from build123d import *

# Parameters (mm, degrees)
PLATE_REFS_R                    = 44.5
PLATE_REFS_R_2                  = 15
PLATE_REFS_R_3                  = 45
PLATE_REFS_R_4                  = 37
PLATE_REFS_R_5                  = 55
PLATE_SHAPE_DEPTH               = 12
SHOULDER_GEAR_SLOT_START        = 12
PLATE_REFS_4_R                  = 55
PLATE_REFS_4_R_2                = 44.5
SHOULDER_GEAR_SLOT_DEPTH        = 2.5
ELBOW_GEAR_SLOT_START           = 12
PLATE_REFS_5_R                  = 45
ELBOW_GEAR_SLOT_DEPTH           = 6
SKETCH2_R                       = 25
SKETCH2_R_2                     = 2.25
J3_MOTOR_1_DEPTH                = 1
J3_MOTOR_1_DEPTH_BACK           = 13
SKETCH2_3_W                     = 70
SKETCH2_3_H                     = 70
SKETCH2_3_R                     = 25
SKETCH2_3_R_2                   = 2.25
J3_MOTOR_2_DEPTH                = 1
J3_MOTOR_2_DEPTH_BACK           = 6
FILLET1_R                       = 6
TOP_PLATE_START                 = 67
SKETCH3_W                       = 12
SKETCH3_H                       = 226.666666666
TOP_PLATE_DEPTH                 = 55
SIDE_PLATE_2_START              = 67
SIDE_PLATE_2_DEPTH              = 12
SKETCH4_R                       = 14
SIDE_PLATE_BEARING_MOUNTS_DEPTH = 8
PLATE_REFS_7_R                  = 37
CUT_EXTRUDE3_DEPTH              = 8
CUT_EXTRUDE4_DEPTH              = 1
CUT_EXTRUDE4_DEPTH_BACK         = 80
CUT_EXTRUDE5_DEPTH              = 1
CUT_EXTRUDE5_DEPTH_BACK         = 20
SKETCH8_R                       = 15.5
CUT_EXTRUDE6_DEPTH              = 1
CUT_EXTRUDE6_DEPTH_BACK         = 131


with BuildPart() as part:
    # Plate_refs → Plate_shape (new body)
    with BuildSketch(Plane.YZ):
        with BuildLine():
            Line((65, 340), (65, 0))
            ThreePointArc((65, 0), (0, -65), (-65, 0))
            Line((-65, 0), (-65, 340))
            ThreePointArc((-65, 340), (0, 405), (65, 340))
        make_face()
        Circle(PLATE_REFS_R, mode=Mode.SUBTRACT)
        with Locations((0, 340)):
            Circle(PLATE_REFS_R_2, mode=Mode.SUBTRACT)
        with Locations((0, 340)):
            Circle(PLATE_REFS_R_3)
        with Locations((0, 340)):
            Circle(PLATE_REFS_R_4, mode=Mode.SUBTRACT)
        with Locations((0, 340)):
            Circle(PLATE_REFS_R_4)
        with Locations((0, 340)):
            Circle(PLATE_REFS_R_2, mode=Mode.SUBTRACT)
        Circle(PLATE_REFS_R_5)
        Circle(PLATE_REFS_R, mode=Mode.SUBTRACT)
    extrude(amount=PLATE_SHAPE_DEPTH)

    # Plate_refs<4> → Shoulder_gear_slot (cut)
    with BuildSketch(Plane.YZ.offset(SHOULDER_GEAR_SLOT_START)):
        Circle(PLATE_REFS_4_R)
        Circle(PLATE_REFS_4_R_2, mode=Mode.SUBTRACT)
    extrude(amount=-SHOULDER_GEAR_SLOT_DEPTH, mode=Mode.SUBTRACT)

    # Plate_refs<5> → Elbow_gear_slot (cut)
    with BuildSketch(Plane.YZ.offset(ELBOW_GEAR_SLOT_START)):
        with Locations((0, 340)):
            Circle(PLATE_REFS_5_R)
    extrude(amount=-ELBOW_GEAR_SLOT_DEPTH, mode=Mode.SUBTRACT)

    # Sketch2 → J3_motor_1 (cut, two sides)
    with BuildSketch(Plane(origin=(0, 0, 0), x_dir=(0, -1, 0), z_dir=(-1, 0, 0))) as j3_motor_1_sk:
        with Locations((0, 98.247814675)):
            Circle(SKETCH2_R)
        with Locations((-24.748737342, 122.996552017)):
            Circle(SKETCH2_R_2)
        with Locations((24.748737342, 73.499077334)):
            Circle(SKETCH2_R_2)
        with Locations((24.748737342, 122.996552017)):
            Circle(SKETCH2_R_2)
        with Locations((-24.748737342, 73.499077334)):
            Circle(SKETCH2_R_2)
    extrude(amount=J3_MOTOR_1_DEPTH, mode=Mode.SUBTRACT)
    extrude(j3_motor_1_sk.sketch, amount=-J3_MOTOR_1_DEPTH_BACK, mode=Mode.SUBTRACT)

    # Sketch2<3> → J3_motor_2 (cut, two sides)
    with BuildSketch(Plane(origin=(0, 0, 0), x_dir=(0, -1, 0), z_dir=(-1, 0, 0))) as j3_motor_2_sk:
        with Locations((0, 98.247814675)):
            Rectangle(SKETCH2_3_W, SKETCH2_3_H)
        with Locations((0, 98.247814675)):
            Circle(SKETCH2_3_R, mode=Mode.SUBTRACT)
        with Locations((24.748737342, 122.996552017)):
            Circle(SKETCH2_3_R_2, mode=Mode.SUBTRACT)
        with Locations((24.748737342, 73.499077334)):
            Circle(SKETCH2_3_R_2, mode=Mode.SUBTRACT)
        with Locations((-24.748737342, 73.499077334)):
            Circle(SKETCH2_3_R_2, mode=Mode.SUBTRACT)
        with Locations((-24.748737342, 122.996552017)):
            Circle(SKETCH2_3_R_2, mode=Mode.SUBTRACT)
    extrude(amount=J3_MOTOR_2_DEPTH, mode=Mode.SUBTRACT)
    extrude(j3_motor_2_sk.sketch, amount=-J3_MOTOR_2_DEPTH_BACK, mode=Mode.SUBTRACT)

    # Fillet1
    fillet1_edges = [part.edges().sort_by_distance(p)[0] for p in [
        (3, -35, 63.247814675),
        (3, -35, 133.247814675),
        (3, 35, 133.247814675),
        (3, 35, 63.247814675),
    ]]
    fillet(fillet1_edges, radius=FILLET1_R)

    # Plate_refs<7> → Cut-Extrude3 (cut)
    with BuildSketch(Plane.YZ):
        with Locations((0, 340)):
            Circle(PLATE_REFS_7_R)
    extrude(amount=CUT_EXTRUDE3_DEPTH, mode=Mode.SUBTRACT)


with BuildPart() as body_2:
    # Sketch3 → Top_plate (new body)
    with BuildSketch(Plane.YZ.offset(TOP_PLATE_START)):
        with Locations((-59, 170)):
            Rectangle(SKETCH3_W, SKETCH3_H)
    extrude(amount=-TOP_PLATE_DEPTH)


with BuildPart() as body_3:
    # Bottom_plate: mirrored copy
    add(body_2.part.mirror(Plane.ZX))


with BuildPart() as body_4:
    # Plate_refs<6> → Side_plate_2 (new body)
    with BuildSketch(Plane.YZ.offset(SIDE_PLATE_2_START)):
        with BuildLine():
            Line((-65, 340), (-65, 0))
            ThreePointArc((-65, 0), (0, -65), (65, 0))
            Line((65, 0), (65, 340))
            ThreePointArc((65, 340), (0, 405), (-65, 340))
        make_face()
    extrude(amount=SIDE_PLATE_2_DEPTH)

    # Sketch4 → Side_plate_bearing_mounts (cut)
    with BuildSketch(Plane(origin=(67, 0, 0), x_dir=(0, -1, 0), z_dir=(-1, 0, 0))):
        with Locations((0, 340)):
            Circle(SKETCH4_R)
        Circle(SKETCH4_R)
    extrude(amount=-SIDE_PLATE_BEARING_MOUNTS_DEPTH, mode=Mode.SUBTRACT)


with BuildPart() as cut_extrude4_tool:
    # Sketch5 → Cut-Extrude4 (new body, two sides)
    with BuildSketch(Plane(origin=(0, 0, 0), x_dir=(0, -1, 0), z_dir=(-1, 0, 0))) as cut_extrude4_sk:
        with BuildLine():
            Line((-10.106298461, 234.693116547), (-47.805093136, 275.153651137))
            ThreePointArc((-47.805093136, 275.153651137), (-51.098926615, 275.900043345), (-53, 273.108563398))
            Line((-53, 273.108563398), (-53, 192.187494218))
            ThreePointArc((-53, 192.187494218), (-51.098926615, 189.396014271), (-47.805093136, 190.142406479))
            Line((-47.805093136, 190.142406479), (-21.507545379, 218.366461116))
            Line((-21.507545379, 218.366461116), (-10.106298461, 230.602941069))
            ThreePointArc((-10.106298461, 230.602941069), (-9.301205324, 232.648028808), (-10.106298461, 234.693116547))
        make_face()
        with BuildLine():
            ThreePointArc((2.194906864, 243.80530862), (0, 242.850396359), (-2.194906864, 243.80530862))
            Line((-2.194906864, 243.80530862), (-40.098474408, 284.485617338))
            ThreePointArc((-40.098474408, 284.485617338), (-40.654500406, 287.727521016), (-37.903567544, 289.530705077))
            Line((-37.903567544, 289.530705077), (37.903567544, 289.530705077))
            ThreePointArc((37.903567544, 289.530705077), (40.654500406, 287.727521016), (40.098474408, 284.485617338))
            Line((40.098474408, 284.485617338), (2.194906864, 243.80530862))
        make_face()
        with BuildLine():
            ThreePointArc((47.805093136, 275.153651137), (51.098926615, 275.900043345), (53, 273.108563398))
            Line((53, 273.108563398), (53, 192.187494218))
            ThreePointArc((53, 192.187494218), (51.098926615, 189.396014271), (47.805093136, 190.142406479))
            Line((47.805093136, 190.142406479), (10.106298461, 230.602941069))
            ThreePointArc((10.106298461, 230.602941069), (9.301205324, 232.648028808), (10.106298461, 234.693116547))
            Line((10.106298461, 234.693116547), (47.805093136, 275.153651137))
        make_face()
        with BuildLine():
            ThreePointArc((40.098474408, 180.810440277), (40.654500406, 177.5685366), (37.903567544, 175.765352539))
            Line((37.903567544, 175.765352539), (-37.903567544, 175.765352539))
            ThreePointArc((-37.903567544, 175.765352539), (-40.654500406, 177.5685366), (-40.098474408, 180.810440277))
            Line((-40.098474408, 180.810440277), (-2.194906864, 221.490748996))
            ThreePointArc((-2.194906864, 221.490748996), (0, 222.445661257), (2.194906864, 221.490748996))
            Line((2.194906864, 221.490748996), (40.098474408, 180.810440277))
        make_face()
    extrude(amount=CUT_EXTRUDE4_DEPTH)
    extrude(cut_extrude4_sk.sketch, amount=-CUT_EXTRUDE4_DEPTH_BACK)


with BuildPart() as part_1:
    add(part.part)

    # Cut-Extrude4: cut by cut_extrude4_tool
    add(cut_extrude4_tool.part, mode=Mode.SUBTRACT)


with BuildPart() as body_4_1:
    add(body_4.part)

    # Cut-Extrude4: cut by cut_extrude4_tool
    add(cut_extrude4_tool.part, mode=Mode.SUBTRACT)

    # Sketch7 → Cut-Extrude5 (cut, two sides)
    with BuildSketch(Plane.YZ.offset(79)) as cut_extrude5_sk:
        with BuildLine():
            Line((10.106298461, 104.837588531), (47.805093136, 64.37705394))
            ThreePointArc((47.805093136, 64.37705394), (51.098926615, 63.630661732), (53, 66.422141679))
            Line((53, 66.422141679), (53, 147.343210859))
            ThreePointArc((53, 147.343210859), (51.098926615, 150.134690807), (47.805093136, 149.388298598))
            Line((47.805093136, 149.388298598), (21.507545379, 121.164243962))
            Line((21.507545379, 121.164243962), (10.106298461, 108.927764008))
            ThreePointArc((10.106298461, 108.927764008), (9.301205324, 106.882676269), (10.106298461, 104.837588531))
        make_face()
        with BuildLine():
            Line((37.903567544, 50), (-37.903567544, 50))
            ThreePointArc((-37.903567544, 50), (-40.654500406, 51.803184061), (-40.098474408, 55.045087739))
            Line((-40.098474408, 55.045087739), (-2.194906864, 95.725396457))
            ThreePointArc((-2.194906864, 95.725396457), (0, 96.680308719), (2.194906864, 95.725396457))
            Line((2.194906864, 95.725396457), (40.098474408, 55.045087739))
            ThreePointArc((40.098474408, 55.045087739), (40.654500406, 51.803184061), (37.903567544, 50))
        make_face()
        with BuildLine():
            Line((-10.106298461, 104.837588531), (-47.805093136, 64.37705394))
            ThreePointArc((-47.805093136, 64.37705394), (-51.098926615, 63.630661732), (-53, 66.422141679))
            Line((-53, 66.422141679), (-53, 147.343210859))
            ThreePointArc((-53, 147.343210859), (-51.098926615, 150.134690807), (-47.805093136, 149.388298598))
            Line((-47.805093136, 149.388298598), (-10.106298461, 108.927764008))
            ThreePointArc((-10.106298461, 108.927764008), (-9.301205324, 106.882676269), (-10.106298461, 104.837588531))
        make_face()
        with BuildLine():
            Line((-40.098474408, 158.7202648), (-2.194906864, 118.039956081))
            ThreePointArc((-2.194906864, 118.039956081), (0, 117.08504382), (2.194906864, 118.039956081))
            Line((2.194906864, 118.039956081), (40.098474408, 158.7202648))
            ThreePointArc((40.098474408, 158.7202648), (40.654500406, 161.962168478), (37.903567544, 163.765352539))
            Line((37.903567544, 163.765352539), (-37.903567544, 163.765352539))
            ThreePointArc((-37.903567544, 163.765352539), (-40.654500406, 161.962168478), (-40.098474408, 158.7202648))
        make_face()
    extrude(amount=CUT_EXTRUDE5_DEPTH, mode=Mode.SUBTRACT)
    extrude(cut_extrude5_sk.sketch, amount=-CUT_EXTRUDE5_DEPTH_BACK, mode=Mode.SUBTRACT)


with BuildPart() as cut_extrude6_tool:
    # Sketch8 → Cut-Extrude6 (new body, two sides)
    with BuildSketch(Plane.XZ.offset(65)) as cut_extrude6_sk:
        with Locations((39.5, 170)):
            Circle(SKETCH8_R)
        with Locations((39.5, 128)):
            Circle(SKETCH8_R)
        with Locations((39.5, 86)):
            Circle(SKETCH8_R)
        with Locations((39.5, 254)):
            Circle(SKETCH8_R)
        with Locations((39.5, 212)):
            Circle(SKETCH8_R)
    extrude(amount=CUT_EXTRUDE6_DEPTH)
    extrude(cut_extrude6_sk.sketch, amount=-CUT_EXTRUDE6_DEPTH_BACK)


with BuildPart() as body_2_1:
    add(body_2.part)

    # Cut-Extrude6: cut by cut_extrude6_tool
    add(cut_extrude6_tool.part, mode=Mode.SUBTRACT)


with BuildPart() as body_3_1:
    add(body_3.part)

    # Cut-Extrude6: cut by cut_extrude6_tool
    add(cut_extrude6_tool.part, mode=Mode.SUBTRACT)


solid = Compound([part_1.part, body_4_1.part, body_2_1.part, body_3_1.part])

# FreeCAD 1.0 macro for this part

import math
import FreeCAD as App
import Part
import Sketcher
Q = App.Units.Quantity


def edges_at(feature, points):
    """Names of the edges that pass closest to the given points."""
    edges = feature.Shape.Edges
    near = lambda p: min(range(len(edges)), key=lambda i: edges[i].distToShape(Part.Vertex(*p))[0])
    return sorted({f"Edge{near(p) + 1}" for p in points})


def add_polygon(sketch, points):
    """Adds a closed chain of lines whose ends are joined by coincident constraints."""
    first, n = sketch.GeometryCount, len(points)
    for a, b in zip(points, points[1:] + points[:1]):
        sketch.addGeometry(Part.LineSegment(App.Vector(*a, 0), App.Vector(*b, 0)), False)
    for i in range(n):
        sketch.addConstraint(Sketcher.Constraint("Coincident", first + i, 2, first + (i + 1) % n, 1))

doc = App.newDocument("Part")
body = doc.addObject("PartDesign::Body", "Body")

sketch1 = body.newObject("Sketcher::SketchObject", "Sketch")
sketch1.AttachmentSupport = (doc.getObject("YZ_Plane"), [""])
sketch1.MapMode = "FlatFace"
sketch1.addGeometry([
    Part.LineSegment(App.Vector(65, 0, 0), App.Vector(65, 340, 0)),
    Part.ArcOfCircle(Part.Circle(App.Vector(0, 340, 0), App.Vector(0, 0, 1), 65), math.radians(0), math.radians(180)),
    Part.LineSegment(App.Vector(-65, 340, 0), App.Vector(-65, 0, 0)),
    Part.ArcOfCircle(Part.Circle(App.Vector(0, 0, 0), App.Vector(0, 0, 1), 65), math.radians(180), math.radians(360)),
    Part.Circle(App.Vector(0, 0, 0), App.Vector(0, 0, 1), 44),
    Part.Circle(App.Vector(0, 340, 0), App.Vector(0, 0, 1), 15),
], False)
sketch1.addConstraint([
    Sketcher.Constraint("Tangent", 0, 2, 1, 1),
    Sketcher.Constraint("Tangent", 1, 2, 2, 1),
    Sketcher.Constraint("Tangent", 2, 2, 3, 1),
    Sketcher.Constraint("Tangent", 3, 2, 0, 1),
    Sketcher.Constraint("Vertical", 0),
    Sketcher.Constraint("Vertical", 2),
    Sketcher.Constraint("Coincident", 3, 3, -1, 1),
    Sketcher.Constraint("Coincident", 4, 3, -1, 1),
    Sketcher.Constraint("Coincident", 5, 3, 1, 3),
    Sketcher.Constraint("Diameter", 4, Q("89 mm")),
    Sketcher.Constraint("Diameter", 5, Q("30 mm")),
    Sketcher.Constraint("Radius", 1, Q("65 mm")),
    Sketcher.Constraint("DistanceY", 0, 1, 0, 2, Q("340 mm")),
])
pad1 = body.newObject("PartDesign::Pad", "Pad")
pad1.Profile = sketch1
pad1.Length = 12

sketch2 = body.newObject("Sketcher::SketchObject", "Sketch001")
sketch2.AttachmentSupport = (doc.getObject("YZ_Plane"), [""])
sketch2.MapMode = "FlatFace"
sketch2.AttachmentOffset = App.Placement(App.Vector(0, 0, 12), App.Rotation())
sketch2.addGeometry([
    Part.Circle(App.Vector(0, 0, 0), App.Vector(0, 0, 1), 55),
    Part.Circle(App.Vector(0, 0, 0), App.Vector(0, 0, 1), 44),
], False)
sketch2.addConstraint([
    Sketcher.Constraint("Coincident", 0, 3, -1, 1),
    Sketcher.Constraint("Coincident", 1, 3, -1, 1),
    Sketcher.Constraint("Diameter", 0, Q("110 mm")),
    Sketcher.Constraint("Diameter", 1, Q("89 mm")),
])
pocket1 = body.newObject("PartDesign::Pocket", "Pocket")
pocket1.Profile = sketch2
pocket1.Length = 2.5

sketch3 = body.newObject("Sketcher::SketchObject", "Sketch002")
sketch3.AttachmentSupport = (doc.getObject("YZ_Plane"), [""])
sketch3.MapMode = "FlatFace"
sketch3.AttachmentOffset = App.Placement(App.Vector(0, 0, 12), App.Rotation())
sketch3.addGeometry(Part.Circle(App.Vector(0, 340, 0), App.Vector(0, 0, 1), 45), False)
sketch3.addConstraint([
    Sketcher.Constraint("PointOnObject", 0, 3, -2),
    Sketcher.Constraint("Diameter", 0, Q("90 mm")),
    Sketcher.Constraint("DistanceY", -1, 1, 0, 3, Q("340 mm")),
])
pocket2 = body.newObject("PartDesign::Pocket", "Pocket001")
pocket2.Profile = sketch3
pocket2.Length = 6

sketch4 = body.newObject("Sketcher::SketchObject", "Sketch003")
sketch4.AttachmentSupport = (doc.getObject("YZ_Plane"), [""])
sketch4.MapMode = "FlatFace"
sketch4.addGeometry([
    Part.Circle(App.Vector(0, 98.2, 0), App.Vector(0, 0, 1), 25),
    Part.Circle(App.Vector(24.7, 123, 0), App.Vector(0, 0, 1), 2.2),
    Part.Circle(App.Vector(-24.7, 73.5, 0), App.Vector(0, 0, 1), 2.2),
    Part.Circle(App.Vector(-24.7, 123, 0), App.Vector(0, 0, 1), 2.2),
    Part.Circle(App.Vector(24.7, 73.5, 0), App.Vector(0, 0, 1), 2.2),
], False)
sketch4.addConstraint([
    Sketcher.Constraint("Equal", 1, 2),
    Sketcher.Constraint("Equal", 2, 3),
    Sketcher.Constraint("Equal", 3, 4),
    Sketcher.Constraint("Symmetric", 1, 3, 3, 3, -2),
    Sketcher.Constraint("Symmetric", 2, 3, 4, 3, -2),
    Sketcher.Constraint("PointOnObject", 0, 3, -2),
    Sketcher.Constraint("Vertical", 2, 3, 3, 3),
    Sketcher.Constraint("Diameter", 0, Q("50 mm")),
    Sketcher.Constraint("Diameter", 1, Q("4.5 mm")),
    Sketcher.Constraint("DistanceY", -1, 1, 0, 3, Q("98.247815 mm")),
    Sketcher.Constraint("DistanceX", -1, 1, 1, 3, Q("24.748737 mm")),
    Sketcher.Constraint("DistanceY", -1, 1, 1, 3, Q("122.996552 mm")),
    Sketcher.Constraint("DistanceY", -1, 1, 2, 3, Q("73.499077 mm")),
])
pocket3 = body.newObject("PartDesign::Pocket", "Pocket002")
pocket3.Profile = sketch4
pocket3.Type = "ThroughAll"
pocket3.Midplane = True

sketch5 = body.newObject("Sketcher::SketchObject", "Sketch004")
sketch5.AttachmentSupport = (doc.getObject("YZ_Plane"), [""])
sketch5.MapMode = "FlatFace"
add_polygon(sketch5, [(35, 133.2), (35, 63.2), (-35, 63.2), (-35, 133.2)])
sketch5.addGeometry(Part.Circle(App.Vector(24.7, 73.5, 0), App.Vector(0, 0, 1), 2.2), False)
sketch5.addGeometry(Part.Circle(App.Vector(-24.7, 73.5, 0), App.Vector(0, 0, 1), 2.2), False)
sketch5.addGeometry(Part.Circle(App.Vector(0, 98.2, 0), App.Vector(0, 0, 1), 25), False)
sketch5.addGeometry(Part.Circle(App.Vector(24.7, 123, 0), App.Vector(0, 0, 1), 2.2), False)
sketch5.addGeometry(Part.Circle(App.Vector(-24.7, 123, 0), App.Vector(0, 0, 1), 2.2), False)
sketch5.addConstraint([
    Sketcher.Constraint("Vertical", 0),
    Sketcher.Constraint("Horizontal", 1),
    Sketcher.Constraint("Vertical", 2),
    Sketcher.Constraint("Horizontal", 3),
    Sketcher.Constraint("Equal", 4, 5),
    Sketcher.Constraint("Equal", 5, 7),
    Sketcher.Constraint("Equal", 7, 8),
    Sketcher.Constraint("Symmetric", 4, 3, 5, 3, -2),
    Sketcher.Constraint("Symmetric", 7, 3, 8, 3, -2),
    Sketcher.Constraint("PointOnObject", 6, 3, -2),
    Sketcher.Constraint("Vertical", 4, 3, 7, 3),
    Sketcher.Constraint("Equal", 3, 0),
    Sketcher.Constraint("Diameter", 6, Q("50 mm")),
    Sketcher.Constraint("Diameter", 4, Q("4.5 mm")),
    Sketcher.Constraint("DistanceX", 1, 2, 1, 1, Q("70 mm")),
    Sketcher.Constraint("DistanceX", -1, 1, 0, 2, Q("35 mm")),
    Sketcher.Constraint("DistanceY", 0, 2, 6, 3, Q("35 mm")),
    Sketcher.Constraint("DistanceX", -1, 1, 4, 3, Q("24.748737 mm")),
    Sketcher.Constraint("DistanceY", -1, 1, 4, 3, Q("73.499077 mm")),
    Sketcher.Constraint("DistanceY", -1, 1, 6, 3, Q("98.247815 mm")),
    Sketcher.Constraint("DistanceY", -1, 1, 7, 3, Q("122.996552 mm")),
])
pocket4 = body.newObject("PartDesign::Pocket", "Pocket003")
pocket4.Profile = sketch5
pocket4.Type = "TwoLengths"
pocket4.Length = 1
pocket4.Length2 = 6
doc.recompute()

fillet = body.newObject("PartDesign::Fillet", "Fillet")
fillet.Base = (pocket4, edges_at(pocket4, [
    (3, -35, 63.248),
    (3, -35, 133.248),
    (3, 35, 133.248),
    (3, 35, 63.248),
]))
fillet.Radius = 6

sketch6 = body.newObject("Sketcher::SketchObject", "Sketch005")
sketch6.AttachmentSupport = (doc.getObject("YZ_Plane"), [""])
sketch6.MapMode = "FlatFace"
sketch6.addGeometry(Part.Circle(App.Vector(0, 340, 0), App.Vector(0, 0, 1), 37), False)
sketch6.addConstraint([
    Sketcher.Constraint("PointOnObject", 0, 3, -2),
    Sketcher.Constraint("Diameter", 0, Q("74 mm")),
    Sketcher.Constraint("DistanceY", -1, 1, 0, 3, Q("340 mm")),
])
pocket5 = body.newObject("PartDesign::Pocket", "Pocket004")
pocket5.Profile = sketch6
pocket5.Length = 8
pocket5.Reversed = True
body2 = doc.addObject("PartDesign::Body", "Body001")

sketch7 = body2.newObject("Sketcher::SketchObject", "Sketch006")
sketch7.AttachmentSupport = (doc.getObject("YZ_Plane001"), [""])
sketch7.MapMode = "FlatFace"
sketch7.AttachmentOffset = App.Placement(App.Vector(0, 0, 67), App.Rotation())
add_polygon(sketch7, [(-65, 283), (-65, 57), (-53, 57), (-53, 283)])
sketch7.addConstraint([
    Sketcher.Constraint("Vertical", 0),
    Sketcher.Constraint("Horizontal", 1),
    Sketcher.Constraint("Vertical", 2),
    Sketcher.Constraint("Horizontal", 3),
    Sketcher.Constraint("DistanceX", 1, 1, 1, 2, Q("12 mm")),
    Sketcher.Constraint("DistanceX", 0, 2, -1, 1, Q("65 mm")),
    Sketcher.Constraint("DistanceY", 0, 2, 0, 1, Q("226.666667 mm")),
    Sketcher.Constraint("DistanceY", -1, 1, 0, 2, Q("56.666667 mm")),
])
pad2 = body2.newObject("PartDesign::Pad", "Pad001")
pad2.Profile = sketch7
pad2.Length = 55
pad2.Reversed = True
body3 = doc.addObject("PartDesign::Body", "Body002")
doc.recompute()

mirroring = doc.addObject("Part::Mirroring", "Mirroring")
mirroring.Source = body2
mirroring.Base = App.Vector(0, 0, 0)
mirroring.Normal = App.Vector(0, 1, 0)
body3.BaseFeature = mirroring
doc.recompute()
body4 = doc.addObject("PartDesign::Body", "Body003")

sketch8 = body4.newObject("Sketcher::SketchObject", "Sketch007")
sketch8.AttachmentSupport = (doc.getObject("YZ_Plane003"), [""])
sketch8.MapMode = "FlatFace"
sketch8.AttachmentOffset = App.Placement(App.Vector(0, 0, 67), App.Rotation())
sketch8.addGeometry([
    Part.LineSegment(App.Vector(-65, 340, 0), App.Vector(-65, 0, 0)),
    Part.ArcOfCircle(Part.Circle(App.Vector(0, 0, 0), App.Vector(0, 0, 1), 65), math.radians(180), math.radians(360)),
    Part.LineSegment(App.Vector(65, 0, 0), App.Vector(65, 340, 0)),
    Part.ArcOfCircle(Part.Circle(App.Vector(0, 340, 0), App.Vector(0, 0, 1), 65), math.radians(0), math.radians(180)),
], False)
sketch8.addConstraint([
    Sketcher.Constraint("Tangent", 0, 2, 1, 1),
    Sketcher.Constraint("Tangent", 1, 2, 2, 1),
    Sketcher.Constraint("Tangent", 2, 2, 3, 1),
    Sketcher.Constraint("Tangent", 3, 2, 0, 1),
    Sketcher.Constraint("Vertical", 0),
    Sketcher.Constraint("Vertical", 2),
    Sketcher.Constraint("Coincident", 1, 3, -1, 1),
    Sketcher.Constraint("Radius", 1, Q("65 mm")),
    Sketcher.Constraint("DistanceY", 0, 2, 0, 1, Q("340 mm")),
])
pad3 = body4.newObject("PartDesign::Pad", "Pad002")
pad3.Profile = sketch8
pad3.Length = 12

sketch9 = body4.newObject("Sketcher::SketchObject", "Sketch008")
sketch9.AttachmentSupport = (doc.getObject("YZ_Plane003"), [""])
sketch9.MapMode = "FlatFace"
sketch9.AttachmentOffset = App.Placement(App.Vector(0, 0, 67), App.Rotation())
sketch9.addGeometry([
    Part.Circle(App.Vector(0, 340, 0), App.Vector(0, 0, 1), 14),
    Part.Circle(App.Vector(0, 0, 0), App.Vector(0, 0, 1), 14),
], False)
sketch9.addConstraint([
    Sketcher.Constraint("Coincident", 1, 3, -1, 1),
    Sketcher.Constraint("Equal", 0, 1),
    Sketcher.Constraint("PointOnObject", 0, 3, -2),
    Sketcher.Constraint("Diameter", 0, Q("28 mm")),
    Sketcher.Constraint("DistanceY", -1, 1, 0, 3, Q("340 mm")),
])
pocket6 = body4.newObject("PartDesign::Pocket", "Pocket005")
pocket6.Profile = sketch9
pocket6.Length = 8
pocket6.Reversed = True
body5 = doc.addObject("PartDesign::Body", "Body004")
body5.AllowCompound = True

sketch10 = body5.newObject("Sketcher::SketchObject", "Sketch009")
sketch10.AttachmentSupport = (doc.getObject("YZ_Plane004"), [""])
sketch10.MapMode = "FlatFace"
sketch10.addGeometry([
    Part.LineSegment(App.Vector(10.1, 234.7, 0), App.Vector(47.8, 275.2, 0)),
    Part.ArcOfCircle(Part.Circle(App.Vector(50, 273.1, 0), App.Vector(0, 0, 1), 3), math.radians(0), math.radians(137)),
    Part.LineSegment(App.Vector(53, 273.1, 0), App.Vector(53, 192.2, 0)),
    Part.ArcOfCircle(Part.Circle(App.Vector(50, 192.2, 0), App.Vector(0, 0, 1), 3), math.radians(-137), math.radians(0)),
    Part.LineSegment(App.Vector(47.8, 190.1, 0), App.Vector(21.5, 218.4, 0)),
    Part.LineSegment(App.Vector(21.5, 218.4, 0), App.Vector(10.1, 230.6, 0)),
    Part.ArcOfCircle(Part.Circle(App.Vector(12.3, 232.6, 0), App.Vector(0, 0, 1), 3), math.radians(137), math.radians(223)),
    Part.ArcOfCircle(Part.Circle(App.Vector(0, 245.9, 0), App.Vector(0, 0, 1), 3), math.radians(-137), math.radians(-43)),
    Part.LineSegment(App.Vector(-2.2, 243.8, 0), App.Vector(-40.1, 284.5, 0)),
    Part.ArcOfCircle(Part.Circle(App.Vector(-37.9, 286.5, 0), App.Vector(0, 0, 1), 3), math.radians(90), math.radians(223)),
    Part.LineSegment(App.Vector(-37.9, 289.5, 0), App.Vector(37.9, 289.5, 0)),
    Part.ArcOfCircle(Part.Circle(App.Vector(37.9, 286.5, 0), App.Vector(0, 0, 1), 3), math.radians(-43), math.radians(90)),
    Part.LineSegment(App.Vector(40.1, 284.5, 0), App.Vector(2.2, 243.8, 0)),
    Part.ArcOfCircle(Part.Circle(App.Vector(-50, 273.1, 0), App.Vector(0, 0, 1), 3), math.radians(43), math.radians(180)),
    Part.LineSegment(App.Vector(-47.8, 275.2, 0), App.Vector(-10.1, 234.7, 0)),
    Part.ArcOfCircle(Part.Circle(App.Vector(-12.3, 232.6, 0), App.Vector(0, 0, 1), 3), math.radians(-43), math.radians(43)),
    Part.LineSegment(App.Vector(-10.1, 230.6, 0), App.Vector(-47.8, 190.1, 0)),
    Part.ArcOfCircle(Part.Circle(App.Vector(-50, 192.2, 0), App.Vector(0, 0, 1), 3), math.radians(180), math.radians(317)),
    Part.LineSegment(App.Vector(-53, 192.2, 0), App.Vector(-53, 273.1, 0)),
    Part.ArcOfCircle(Part.Circle(App.Vector(-37.9, 178.8, 0), App.Vector(0, 0, 1), 3), math.radians(137), math.radians(270)),
    Part.LineSegment(App.Vector(-40.1, 180.8, 0), App.Vector(-2.2, 221.5, 0)),
    Part.ArcOfCircle(Part.Circle(App.Vector(0, 219.4, 0), App.Vector(0, 0, 1), 3), math.radians(43), math.radians(137)),
    Part.LineSegment(App.Vector(2.2, 221.5, 0), App.Vector(40.1, 180.8, 0)),
    Part.ArcOfCircle(Part.Circle(App.Vector(37.9, 178.8, 0), App.Vector(0, 0, 1), 3), math.radians(-90), math.radians(43)),
    Part.LineSegment(App.Vector(37.9, 175.8, 0), App.Vector(-37.9, 175.8, 0)),
], False)
sketch10.addConstraint([
    Sketcher.Constraint("Tangent", 0, 2, 1, 2),
    Sketcher.Constraint("Tangent", 1, 1, 2, 1),
    Sketcher.Constraint("Tangent", 2, 2, 3, 2),
    Sketcher.Constraint("Tangent", 3, 1, 4, 1),
    Sketcher.Constraint("Coincident", 4, 2, 5, 1),
    Sketcher.Constraint("Tangent", 5, 2, 6, 2),
    Sketcher.Constraint("Tangent", 6, 1, 0, 1),
    Sketcher.Constraint("Tangent", 7, 1, 8, 1),
    Sketcher.Constraint("Tangent", 8, 2, 9, 2),
    Sketcher.Constraint("Tangent", 9, 1, 10, 1),
    Sketcher.Constraint("Tangent", 10, 2, 11, 2),
    Sketcher.Constraint("Tangent", 11, 1, 12, 1),
    Sketcher.Constraint("Tangent", 12, 2, 7, 2),
    Sketcher.Constraint("Tangent", 13, 1, 14, 1),
    Sketcher.Constraint("Tangent", 14, 2, 15, 2),
    Sketcher.Constraint("Tangent", 15, 1, 16, 1),
    Sketcher.Constraint("Tangent", 16, 2, 17, 2),
    Sketcher.Constraint("Tangent", 17, 1, 18, 1),
    Sketcher.Constraint("Tangent", 18, 2, 13, 2),
    Sketcher.Constraint("Tangent", 19, 1, 20, 1),
    Sketcher.Constraint("Tangent", 20, 2, 21, 2),
    Sketcher.Constraint("Tangent", 21, 1, 22, 1),
    Sketcher.Constraint("Tangent", 22, 2, 23, 2),
    Sketcher.Constraint("Tangent", 23, 1, 24, 1),
    Sketcher.Constraint("Tangent", 24, 2, 19, 2),
    Sketcher.Constraint("Vertical", 2),
    Sketcher.Constraint("Horizontal", 10),
    Sketcher.Constraint("Vertical", 18),
    Sketcher.Constraint("Horizontal", 24),
    Sketcher.Constraint("Equal", 1, 3),
    Sketcher.Constraint("Equal", 3, 6),
    Sketcher.Constraint("Equal", 6, 7),
    Sketcher.Constraint("Equal", 7, 9),
    Sketcher.Constraint("Equal", 9, 11),
    Sketcher.Constraint("Equal", 11, 13),
    Sketcher.Constraint("Equal", 13, 15),
    Sketcher.Constraint("Equal", 15, 17),
    Sketcher.Constraint("Equal", 17, 19),
    Sketcher.Constraint("Equal", 19, 21),
    Sketcher.Constraint("Equal", 21, 23),
    Sketcher.Constraint("Symmetric", 1, 3, 13, 3, -2),
    Sketcher.Constraint("Symmetric", 6, 3, 15, 3, -2),
    Sketcher.Constraint("Symmetric", 8, 2, 11, 1, -2),
    Sketcher.Constraint("Symmetric", 3, 1, 16, 2, -2),
    Sketcher.Constraint("Symmetric", 20, 2, 21, 1, -2),
    Sketcher.Constraint("Parallel", 5, 8),
    Sketcher.Constraint("Parallel", 0, 12),
    Sketcher.Constraint("Parallel", 16, 20),
    Sketcher.Constraint("Vertical", 9, 3, 19, 3),
    Sketcher.Constraint("Radius", 1, Q("3 mm")),
    Sketcher.Constraint("DistanceX", -1, 1, 1, 3, Q("50 mm")),
    Sketcher.Constraint("DistanceY", 2, 2, 2, 1, Q("80.921069 mm")),
    Sketcher.Constraint("DistanceX", -1, 1, 5, 2, Q("10.106298 mm")),
    Sketcher.Constraint("DistanceY", 4, 2, 21, 3, Q("1.0792 mm")),
    Sketcher.Constraint("Distance", 5, Q("16.724828 mm")),
    Sketcher.Constraint("Distance", 8, Q("55.60187 mm")),
    Sketcher.Constraint("DistanceY", -1, 1, 6, 3, Q("232.648029 mm")),
    Sketcher.Constraint("DistanceY", -1, 1, 7, 1, Q("243.805309 mm")),
])
pad4 = body5.newObject("PartDesign::Pad", "Pad003")
pad4.Profile = sketch10
pad4.Type = "TwoLengths"
pad4.Length = 1
pad4.Length2 = 80
pad4.Reversed = True
doc.recompute()

body6 = doc.addObject("PartDesign::Body", "Body005")
body6.BaseFeature = body5
boolean = body.newObject("PartDesign::Boolean", "Boolean")
boolean.Type = "Cut"
boolean.addObjects([body6])
doc.recompute()

boolean2 = body4.newObject("PartDesign::Boolean", "Boolean001")
boolean2.Type = "Cut"
boolean2.addObjects([body5])

sketch11 = body4.newObject("Sketcher::SketchObject", "Sketch010")
sketch11.AttachmentSupport = (doc.getObject("YZ_Plane003"), [""])
sketch11.MapMode = "FlatFace"
sketch11.AttachmentOffset = App.Placement(App.Vector(0, 0, 79), App.Rotation())
sketch11.addGeometry([
    Part.LineSegment(App.Vector(10.1, 104.8, 0), App.Vector(47.8, 64.4, 0)),
    Part.ArcOfCircle(Part.Circle(App.Vector(50, 66.4, 0), App.Vector(0, 0, 1), 3), math.radians(-137), math.radians(0)),
    Part.LineSegment(App.Vector(53, 66.4, 0), App.Vector(53, 147.3, 0)),
    Part.ArcOfCircle(Part.Circle(App.Vector(50, 147.3, 0), App.Vector(0, 0, 1), 3), math.radians(0), math.radians(137)),
    Part.LineSegment(App.Vector(47.8, 149.4, 0), App.Vector(21.5, 121.2, 0)),
    Part.LineSegment(App.Vector(21.5, 121.2, 0), App.Vector(10.1, 108.9, 0)),
    Part.ArcOfCircle(Part.Circle(App.Vector(12.3, 106.9, 0), App.Vector(0, 0, 1), 3), math.radians(137), math.radians(223)),
    Part.LineSegment(App.Vector(-37.9, 50, 0), App.Vector(37.9, 50, 0)),
    Part.ArcOfCircle(Part.Circle(App.Vector(37.9, 53, 0), App.Vector(0, 0, 1), 3), math.radians(-90), math.radians(43)),
    Part.LineSegment(App.Vector(40.1, 55, 0), App.Vector(2.2, 95.7, 0)),
    Part.ArcOfCircle(Part.Circle(App.Vector(0, 93.7, 0), App.Vector(0, 0, 1), 3), math.radians(43), math.radians(137)),
    Part.LineSegment(App.Vector(-2.2, 95.7, 0), App.Vector(-40.1, 55, 0)),
    Part.ArcOfCircle(Part.Circle(App.Vector(-37.9, 53, 0), App.Vector(0, 0, 1), 3), math.radians(137), math.radians(270)),
    Part.LineSegment(App.Vector(-47.8, 64.4, 0), App.Vector(-10.1, 104.8, 0)),
    Part.ArcOfCircle(Part.Circle(App.Vector(-12.3, 106.9, 0), App.Vector(0, 0, 1), 3), math.radians(-43), math.radians(43)),
    Part.LineSegment(App.Vector(-10.1, 108.9, 0), App.Vector(-47.8, 149.4, 0)),
    Part.ArcOfCircle(Part.Circle(App.Vector(-50, 147.3, 0), App.Vector(0, 0, 1), 3), math.radians(43), math.radians(180)),
    Part.LineSegment(App.Vector(-53, 147.3, 0), App.Vector(-53, 66.4, 0)),
    Part.ArcOfCircle(Part.Circle(App.Vector(-50, 66.4, 0), App.Vector(0, 0, 1), 3), math.radians(180), math.radians(317)),
    Part.LineSegment(App.Vector(-40.1, 158.7, 0), App.Vector(-2.2, 118, 0)),
    Part.ArcOfCircle(Part.Circle(App.Vector(0, 120.1, 0), App.Vector(0, 0, 1), 3), math.radians(-137), math.radians(-43)),
    Part.LineSegment(App.Vector(2.2, 118, 0), App.Vector(40.1, 158.7, 0)),
    Part.ArcOfCircle(Part.Circle(App.Vector(37.9, 160.8, 0), App.Vector(0, 0, 1), 3), math.radians(-43), math.radians(90)),
    Part.LineSegment(App.Vector(37.9, 163.8, 0), App.Vector(-37.9, 163.8, 0)),
    Part.ArcOfCircle(Part.Circle(App.Vector(-37.9, 160.8, 0), App.Vector(0, 0, 1), 3), math.radians(90), math.radians(223)),
], False)
sketch11.addConstraint([
    Sketcher.Constraint("Tangent", 0, 2, 1, 1),
    Sketcher.Constraint("Tangent", 1, 2, 2, 1),
    Sketcher.Constraint("Tangent", 2, 2, 3, 1),
    Sketcher.Constraint("Tangent", 3, 2, 4, 1),
    Sketcher.Constraint("Coincident", 4, 2, 5, 1),
    Sketcher.Constraint("Tangent", 5, 2, 6, 1),
    Sketcher.Constraint("Tangent", 6, 2, 0, 1),
    Sketcher.Constraint("Tangent", 7, 2, 8, 1),
    Sketcher.Constraint("Tangent", 8, 2, 9, 1),
    Sketcher.Constraint("Tangent", 9, 2, 10, 1),
    Sketcher.Constraint("Tangent", 10, 2, 11, 1),
    Sketcher.Constraint("Tangent", 11, 2, 12, 1),
    Sketcher.Constraint("Tangent", 12, 2, 7, 1),
    Sketcher.Constraint("Tangent", 13, 2, 14, 1),
    Sketcher.Constraint("Tangent", 14, 2, 15, 1),
    Sketcher.Constraint("Tangent", 15, 2, 16, 1),
    Sketcher.Constraint("Tangent", 16, 2, 17, 1),
    Sketcher.Constraint("Tangent", 17, 2, 18, 1),
    Sketcher.Constraint("Tangent", 18, 2, 13, 1),
    Sketcher.Constraint("Tangent", 19, 2, 20, 1),
    Sketcher.Constraint("Tangent", 20, 2, 21, 1),
    Sketcher.Constraint("Tangent", 21, 2, 22, 1),
    Sketcher.Constraint("Tangent", 22, 2, 23, 1),
    Sketcher.Constraint("Tangent", 23, 2, 24, 1),
    Sketcher.Constraint("Tangent", 24, 2, 19, 1),
    Sketcher.Constraint("Vertical", 2),
    Sketcher.Constraint("Horizontal", 7),
    Sketcher.Constraint("Vertical", 17),
    Sketcher.Constraint("Horizontal", 23),
    Sketcher.Constraint("Equal", 1, 3),
    Sketcher.Constraint("Equal", 3, 6),
    Sketcher.Constraint("Equal", 6, 8),
    Sketcher.Constraint("Equal", 8, 10),
    Sketcher.Constraint("Equal", 10, 12),
    Sketcher.Constraint("Equal", 12, 14),
    Sketcher.Constraint("Equal", 14, 16),
    Sketcher.Constraint("Equal", 16, 18),
    Sketcher.Constraint("Equal", 18, 20),
    Sketcher.Constraint("Equal", 20, 22),
    Sketcher.Constraint("Equal", 22, 24),
    Sketcher.Constraint("Symmetric", 6, 3, 14, 3, -2),
    Sketcher.Constraint("Symmetric", 3, 3, 16, 3, -2),
    Sketcher.Constraint("Symmetric", 9, 2, 10, 2, -2),
    Sketcher.Constraint("Symmetric", 19, 2, 20, 2, -2),
    Sketcher.Constraint("Parallel", 4, 5),
    Sketcher.Constraint("Parallel", 0, 9),
    Sketcher.Constraint("Parallel", 5, 11),
    Sketcher.Constraint("Parallel", 11, 13),
    Sketcher.Constraint("Parallel", 15, 19),
    Sketcher.Constraint("Vertical", 8, 3, 22, 3),
    Sketcher.Constraint("Radius", 1, Q("3 mm")),
    Sketcher.Constraint("DistanceX", -1, 1, 1, 3, Q("50 mm")),
    Sketcher.Constraint("DistanceY", -1, 1, 8, 3, Q("53 mm")),
    Sketcher.Constraint("DistanceY", 2, 1, 2, 2, Q("80.921069 mm")),
    Sketcher.Constraint("DistanceY", -1, 1, 3, 2, Q("149.388299 mm")),
    Sketcher.Constraint("DistanceX", -1, 1, 5, 2, Q("10.106298 mm")),
    Sketcher.Constraint("DistanceY", 20, 3, 4, 2, Q("1.0792 mm")),
    Sketcher.Constraint("Distance", 5, Q("16.724828 mm")),
    Sketcher.Constraint("Distance", 9, Q("55.60187 mm")),
])
pocket7 = body4.newObject("PartDesign::Pocket", "Pocket006")
pocket7.Profile = sketch11
pocket7.Type = "ThroughAll"
pocket7.Midplane = True
body7 = doc.addObject("PartDesign::Body", "Body006")
body7.AllowCompound = True

sketch12 = body7.newObject("Sketcher::SketchObject", "Sketch011")
sketch12.AttachmentSupport = (doc.getObject("XZ_Plane006"), [""])
sketch12.MapMode = "FlatFace"
sketch12.AttachmentOffset = App.Placement(App.Vector(0, 0, 65), App.Rotation())
sketch12.addGeometry([
    Part.Circle(App.Vector(40, 170, 0), App.Vector(0, 0, 1), 16),
    Part.Circle(App.Vector(40, 128, 0), App.Vector(0, 0, 1), 16),
    Part.Circle(App.Vector(40, 86, 0), App.Vector(0, 0, 1), 16),
    Part.Circle(App.Vector(40, 254, 0), App.Vector(0, 0, 1), 16),
    Part.Circle(App.Vector(40, 212, 0), App.Vector(0, 0, 1), 16),
], False)
sketch12.addConstraint([
    Sketcher.Constraint("Equal", 0, 1),
    Sketcher.Constraint("Equal", 1, 2),
    Sketcher.Constraint("Equal", 2, 3),
    Sketcher.Constraint("Equal", 3, 4),
    Sketcher.Constraint("Vertical", 0, 3, 1, 3),
    Sketcher.Constraint("Vertical", 1, 3, 2, 3),
    Sketcher.Constraint("Vertical", 2, 3, 3, 3),
    Sketcher.Constraint("Vertical", 3, 3, 4, 3),
    Sketcher.Constraint("Diameter", 0, Q("31 mm")),
    Sketcher.Constraint("DistanceY", -1, 1, 0, 3, Q("170 mm")),
    Sketcher.Constraint("DistanceY", -1, 1, 1, 3, Q("128 mm")),
    Sketcher.Constraint("DistanceY", -1, 1, 2, 3, Q("86 mm")),
    Sketcher.Constraint("DistanceY", -1, 1, 3, 3, Q("254 mm")),
    Sketcher.Constraint("DistanceY", -1, 1, 4, 3, Q("212 mm")),
    Sketcher.Constraint("DistanceX", -1, 1, 0, 3, Q("39.5 mm")),
])
pad5 = body7.newObject("PartDesign::Pad", "Pad004")
pad5.Profile = sketch12
pad5.Type = "TwoLengths"
pad5.Length = 1
pad5.Length2 = 131
doc.recompute()

body8 = doc.addObject("PartDesign::Body", "Body007")
body8.BaseFeature = body7
boolean3 = body2.newObject("PartDesign::Boolean", "Boolean002")
boolean3.Type = "Cut"
boolean3.addObjects([body8])
doc.recompute()

boolean4 = body3.newObject("PartDesign::Boolean", "Boolean003")
boolean4.Type = "Cut"
boolean4.addObjects([body7])
mirroring.Visibility = False

doc.recompute()
